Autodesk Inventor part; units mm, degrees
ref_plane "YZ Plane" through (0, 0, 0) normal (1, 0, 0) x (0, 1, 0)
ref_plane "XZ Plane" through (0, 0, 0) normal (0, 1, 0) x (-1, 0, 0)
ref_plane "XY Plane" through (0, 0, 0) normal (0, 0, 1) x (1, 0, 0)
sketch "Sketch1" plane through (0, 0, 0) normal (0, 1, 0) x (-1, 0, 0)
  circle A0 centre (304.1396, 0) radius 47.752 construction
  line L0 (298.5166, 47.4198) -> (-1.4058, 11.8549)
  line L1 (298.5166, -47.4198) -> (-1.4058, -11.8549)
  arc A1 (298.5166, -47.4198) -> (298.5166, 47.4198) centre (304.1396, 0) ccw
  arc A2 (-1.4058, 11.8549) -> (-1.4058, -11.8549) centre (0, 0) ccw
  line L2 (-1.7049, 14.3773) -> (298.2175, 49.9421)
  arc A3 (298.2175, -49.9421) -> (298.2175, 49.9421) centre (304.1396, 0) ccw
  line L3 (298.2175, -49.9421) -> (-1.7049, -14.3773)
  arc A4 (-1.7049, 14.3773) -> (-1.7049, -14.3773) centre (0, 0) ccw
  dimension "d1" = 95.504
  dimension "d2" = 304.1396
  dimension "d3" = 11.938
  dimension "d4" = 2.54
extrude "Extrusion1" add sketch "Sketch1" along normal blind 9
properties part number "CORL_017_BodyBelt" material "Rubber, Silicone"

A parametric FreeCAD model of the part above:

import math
import FreeCAD as App
import Part
import Sketcher
from FreeCAD import Vector
Q = App.Units.Quantity

doc = App.newDocument("Part")
body = doc.addObject("PartDesign::Body", "Body")

# Sketch on XZ plane
sketch1 = body.newObject("Sketcher::SketchObject", "Sketch")
sketch1.AttachmentSupport = (doc.getObject("XZ_Plane"), [""])
sketch1.MapMode = "FlatFace"
sketch1.addGeometry([
    Part.LineSegment(Vector(-298, 50, 0), Vector(2, 14, 0)),  # 0
    Part.ArcOfCircle(Part.Circle(Vector(0, 0, 0), Vector(0, 0, 1), 14), math.radians(-83), math.radians(83)),  # 1
    Part.LineSegment(Vector(2, -14, 0), Vector(-298, -50, 0)),  # 2
    Part.ArcOfCircle(Part.Circle(Vector(-304, 0, 0), Vector(0, 0, 1), 50), math.radians(83), math.radians(277)),  # 3
    Part.LineSegment(Vector(1, 12, 0), Vector(-299, 47, 0)),  # 4
    Part.ArcOfCircle(Part.Circle(Vector(-304, 0, 0), Vector(0, 0, 1), 48), math.radians(83), math.radians(277)),  # 5
    Part.LineSegment(Vector(-299, -47, 0), Vector(1, -12, 0)),  # 6
    Part.ArcOfCircle(Part.Circle(Vector(0, 0, 0), Vector(0, 0, 1), 12), math.radians(-83), math.radians(83)),  # 7
], False)
sketch1.addConstraint([
    Sketcher.Constraint("Tangent", 0, 2, 1, 2),
    Sketcher.Constraint("Tangent", 1, 1, 2, 1),
    Sketcher.Constraint("Tangent", 2, 2, 3, 2),
    Sketcher.Constraint("Tangent", 3, 1, 0, 1),
    Sketcher.Constraint("Tangent", 4, 2, 5, 1),
    Sketcher.Constraint("Tangent", 5, 2, 6, 1),
    Sketcher.Constraint("Tangent", 6, 2, 7, 1),
    Sketcher.Constraint("Tangent", 7, 2, 4, 1),
    Sketcher.Constraint("Coincident", 1, 3, -1, 1),
    Sketcher.Constraint("Coincident", 7, 3, -1, 1),
    Sketcher.Constraint("Coincident", 5, 3, 3, 3),
    Sketcher.Constraint("PointOnObject", 3, 3, -1),
    Sketcher.Constraint("Parallel", 0, 4),
    Sketcher.Constraint("Radius", 5, Q("1.88 in")),
    Sketcher.Constraint("Radius", 7, Q("0.47 in")),
    Sketcher.Constraint("Radius", 1, Q("0.57 in")),
    Sketcher.Constraint("DistanceX", 3, 3, -1, 1, Q("11.974 in")),
])
pad1 = body.newObject("PartDesign::Pad", "Pad")
pad1.Profile = sketch1
pad1.Length = 9
pad1.Reversed = True

doc.recompute()
